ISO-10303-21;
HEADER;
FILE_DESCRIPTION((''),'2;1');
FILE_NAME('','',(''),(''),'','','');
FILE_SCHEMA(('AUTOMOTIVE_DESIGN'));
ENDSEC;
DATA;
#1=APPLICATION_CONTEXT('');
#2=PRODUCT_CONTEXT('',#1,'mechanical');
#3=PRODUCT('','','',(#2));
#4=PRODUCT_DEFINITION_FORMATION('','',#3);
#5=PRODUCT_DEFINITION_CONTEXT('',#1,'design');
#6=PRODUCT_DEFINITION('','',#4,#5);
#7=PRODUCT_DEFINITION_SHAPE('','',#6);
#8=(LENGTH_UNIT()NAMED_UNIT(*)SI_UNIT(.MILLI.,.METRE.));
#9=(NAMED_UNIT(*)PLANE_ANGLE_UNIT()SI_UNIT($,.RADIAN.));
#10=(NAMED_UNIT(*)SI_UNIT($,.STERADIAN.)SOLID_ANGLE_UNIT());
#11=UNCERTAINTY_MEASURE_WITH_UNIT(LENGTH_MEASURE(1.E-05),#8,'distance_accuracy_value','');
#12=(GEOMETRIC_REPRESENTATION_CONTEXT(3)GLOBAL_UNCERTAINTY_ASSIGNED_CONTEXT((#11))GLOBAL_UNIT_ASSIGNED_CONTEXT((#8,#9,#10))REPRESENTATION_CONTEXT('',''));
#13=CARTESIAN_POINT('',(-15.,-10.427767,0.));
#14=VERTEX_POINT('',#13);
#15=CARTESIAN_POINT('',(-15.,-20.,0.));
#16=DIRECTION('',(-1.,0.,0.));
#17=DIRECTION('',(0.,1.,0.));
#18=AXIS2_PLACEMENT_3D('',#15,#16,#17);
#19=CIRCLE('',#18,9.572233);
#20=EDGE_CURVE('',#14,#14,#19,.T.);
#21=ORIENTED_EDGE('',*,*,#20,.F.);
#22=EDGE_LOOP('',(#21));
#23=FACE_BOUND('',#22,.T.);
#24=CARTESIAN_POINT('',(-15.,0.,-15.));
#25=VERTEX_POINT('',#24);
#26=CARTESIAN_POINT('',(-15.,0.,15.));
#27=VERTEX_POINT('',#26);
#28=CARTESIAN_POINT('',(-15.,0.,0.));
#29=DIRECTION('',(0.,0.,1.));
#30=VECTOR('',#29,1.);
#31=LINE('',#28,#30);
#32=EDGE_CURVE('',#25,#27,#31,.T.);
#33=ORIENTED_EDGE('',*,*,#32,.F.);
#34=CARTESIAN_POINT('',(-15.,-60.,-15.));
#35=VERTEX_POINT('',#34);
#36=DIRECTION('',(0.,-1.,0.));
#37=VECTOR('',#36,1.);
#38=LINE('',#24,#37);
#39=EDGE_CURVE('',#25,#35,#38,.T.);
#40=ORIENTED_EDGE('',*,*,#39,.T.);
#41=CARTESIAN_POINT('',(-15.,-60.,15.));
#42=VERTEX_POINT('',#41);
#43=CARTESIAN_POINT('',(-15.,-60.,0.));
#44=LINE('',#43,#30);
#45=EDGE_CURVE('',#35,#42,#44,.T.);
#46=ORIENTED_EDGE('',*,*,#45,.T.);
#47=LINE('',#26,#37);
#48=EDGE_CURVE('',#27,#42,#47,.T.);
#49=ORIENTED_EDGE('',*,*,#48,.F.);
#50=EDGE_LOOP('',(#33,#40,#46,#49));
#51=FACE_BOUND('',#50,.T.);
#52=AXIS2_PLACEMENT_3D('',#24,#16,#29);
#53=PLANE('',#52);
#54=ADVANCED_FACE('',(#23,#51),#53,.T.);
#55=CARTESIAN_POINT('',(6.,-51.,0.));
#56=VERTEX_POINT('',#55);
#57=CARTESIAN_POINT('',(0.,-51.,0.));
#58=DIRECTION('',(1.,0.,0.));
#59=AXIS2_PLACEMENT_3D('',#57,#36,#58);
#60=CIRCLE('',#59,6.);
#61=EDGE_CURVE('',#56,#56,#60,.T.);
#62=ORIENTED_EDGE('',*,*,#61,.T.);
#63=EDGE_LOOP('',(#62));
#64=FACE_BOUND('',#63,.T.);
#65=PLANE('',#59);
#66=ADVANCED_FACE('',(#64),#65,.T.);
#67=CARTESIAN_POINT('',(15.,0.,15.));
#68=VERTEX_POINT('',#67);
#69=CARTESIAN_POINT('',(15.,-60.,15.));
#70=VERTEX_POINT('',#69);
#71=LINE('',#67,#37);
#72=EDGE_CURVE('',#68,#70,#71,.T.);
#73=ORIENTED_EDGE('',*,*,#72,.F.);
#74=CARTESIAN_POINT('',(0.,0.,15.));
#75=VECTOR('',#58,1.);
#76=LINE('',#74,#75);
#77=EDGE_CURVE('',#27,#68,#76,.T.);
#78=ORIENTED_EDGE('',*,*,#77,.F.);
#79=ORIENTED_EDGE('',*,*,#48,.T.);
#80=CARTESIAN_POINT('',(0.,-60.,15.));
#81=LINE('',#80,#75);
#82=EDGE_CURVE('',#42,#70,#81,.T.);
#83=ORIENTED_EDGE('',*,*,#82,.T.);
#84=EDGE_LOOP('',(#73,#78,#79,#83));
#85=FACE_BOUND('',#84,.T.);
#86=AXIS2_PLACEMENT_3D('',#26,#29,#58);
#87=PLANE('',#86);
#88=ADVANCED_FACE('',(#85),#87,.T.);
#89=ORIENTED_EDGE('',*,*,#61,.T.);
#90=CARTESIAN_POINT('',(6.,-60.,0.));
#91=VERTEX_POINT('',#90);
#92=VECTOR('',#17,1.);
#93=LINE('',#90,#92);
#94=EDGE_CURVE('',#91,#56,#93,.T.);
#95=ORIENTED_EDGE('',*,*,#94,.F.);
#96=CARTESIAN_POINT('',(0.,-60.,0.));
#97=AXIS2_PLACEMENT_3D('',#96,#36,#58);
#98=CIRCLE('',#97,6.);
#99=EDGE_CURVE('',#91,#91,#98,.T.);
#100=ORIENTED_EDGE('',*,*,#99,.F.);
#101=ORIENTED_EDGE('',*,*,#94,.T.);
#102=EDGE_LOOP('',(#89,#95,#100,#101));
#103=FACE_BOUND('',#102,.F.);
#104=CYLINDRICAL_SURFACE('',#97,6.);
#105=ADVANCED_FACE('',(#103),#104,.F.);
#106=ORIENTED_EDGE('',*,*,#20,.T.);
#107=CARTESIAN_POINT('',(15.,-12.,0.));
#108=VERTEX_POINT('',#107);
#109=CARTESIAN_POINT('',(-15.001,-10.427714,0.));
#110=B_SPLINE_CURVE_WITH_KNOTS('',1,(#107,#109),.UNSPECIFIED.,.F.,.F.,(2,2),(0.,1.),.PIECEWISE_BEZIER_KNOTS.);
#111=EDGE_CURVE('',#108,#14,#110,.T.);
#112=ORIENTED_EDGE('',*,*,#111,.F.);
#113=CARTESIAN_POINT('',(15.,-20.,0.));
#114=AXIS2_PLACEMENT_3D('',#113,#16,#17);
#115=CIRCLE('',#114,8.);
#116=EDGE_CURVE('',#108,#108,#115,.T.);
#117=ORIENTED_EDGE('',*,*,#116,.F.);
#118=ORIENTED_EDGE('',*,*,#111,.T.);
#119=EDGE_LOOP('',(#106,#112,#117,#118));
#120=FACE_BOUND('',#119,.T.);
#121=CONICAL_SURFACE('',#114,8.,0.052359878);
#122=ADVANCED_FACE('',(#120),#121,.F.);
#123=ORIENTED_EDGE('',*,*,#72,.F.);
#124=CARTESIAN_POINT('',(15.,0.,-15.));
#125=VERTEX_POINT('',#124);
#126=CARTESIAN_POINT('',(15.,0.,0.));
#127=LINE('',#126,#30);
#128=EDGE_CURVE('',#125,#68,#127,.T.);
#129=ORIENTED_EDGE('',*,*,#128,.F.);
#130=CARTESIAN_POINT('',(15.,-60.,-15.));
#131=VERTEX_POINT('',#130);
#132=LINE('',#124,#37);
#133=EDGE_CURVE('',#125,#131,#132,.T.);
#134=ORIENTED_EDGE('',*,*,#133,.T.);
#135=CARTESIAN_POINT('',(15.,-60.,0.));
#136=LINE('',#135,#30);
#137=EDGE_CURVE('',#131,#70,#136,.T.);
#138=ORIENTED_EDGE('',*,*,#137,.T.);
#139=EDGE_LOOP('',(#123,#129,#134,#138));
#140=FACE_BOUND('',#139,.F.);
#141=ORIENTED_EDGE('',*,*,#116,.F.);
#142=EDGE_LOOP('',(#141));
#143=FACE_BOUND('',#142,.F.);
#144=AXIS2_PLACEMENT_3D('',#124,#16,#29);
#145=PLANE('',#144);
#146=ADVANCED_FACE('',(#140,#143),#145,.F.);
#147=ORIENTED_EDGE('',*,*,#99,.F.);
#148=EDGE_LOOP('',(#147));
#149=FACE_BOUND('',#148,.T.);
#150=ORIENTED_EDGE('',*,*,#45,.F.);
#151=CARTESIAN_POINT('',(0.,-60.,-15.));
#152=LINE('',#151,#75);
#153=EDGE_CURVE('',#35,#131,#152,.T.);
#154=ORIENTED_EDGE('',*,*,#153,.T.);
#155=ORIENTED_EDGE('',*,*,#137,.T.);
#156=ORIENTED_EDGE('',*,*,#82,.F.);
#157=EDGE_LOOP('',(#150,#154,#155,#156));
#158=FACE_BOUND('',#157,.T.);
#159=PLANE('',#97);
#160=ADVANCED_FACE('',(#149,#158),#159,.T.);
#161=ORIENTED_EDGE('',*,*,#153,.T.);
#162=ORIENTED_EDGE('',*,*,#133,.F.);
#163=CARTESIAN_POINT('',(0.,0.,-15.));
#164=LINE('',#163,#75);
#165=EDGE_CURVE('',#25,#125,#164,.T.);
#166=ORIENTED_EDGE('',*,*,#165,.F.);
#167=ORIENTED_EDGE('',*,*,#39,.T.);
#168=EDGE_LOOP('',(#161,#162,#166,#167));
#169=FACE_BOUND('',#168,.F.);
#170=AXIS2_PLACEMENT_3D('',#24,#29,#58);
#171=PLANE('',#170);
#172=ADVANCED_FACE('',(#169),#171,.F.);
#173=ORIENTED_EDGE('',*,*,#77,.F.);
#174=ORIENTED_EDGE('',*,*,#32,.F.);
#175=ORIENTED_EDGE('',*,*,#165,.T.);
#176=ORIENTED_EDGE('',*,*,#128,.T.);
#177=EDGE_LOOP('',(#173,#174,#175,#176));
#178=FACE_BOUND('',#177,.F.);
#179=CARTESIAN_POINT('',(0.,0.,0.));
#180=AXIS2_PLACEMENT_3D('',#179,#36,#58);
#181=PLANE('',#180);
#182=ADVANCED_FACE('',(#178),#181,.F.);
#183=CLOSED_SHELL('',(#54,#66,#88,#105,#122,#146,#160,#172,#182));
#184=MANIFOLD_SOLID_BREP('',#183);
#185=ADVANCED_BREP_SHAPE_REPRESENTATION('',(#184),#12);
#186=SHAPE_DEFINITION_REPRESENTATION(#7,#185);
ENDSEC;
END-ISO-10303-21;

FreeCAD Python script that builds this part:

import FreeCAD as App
import Part
import Sketcher

V = App.Vector

doc = App.newDocument("Part")
body = doc.addObject("PartDesign::Body", "Body")

sketch1 = body.newObject("Sketcher::SketchObject", "Sketch")
sketch1.AttachmentSupport = (doc.getObject("XZ_Plane"), [""])
sketch1.MapMode = "FlatFace"
sketch1.addGeometry([
    Part.LineSegment(V(-15, 15, 0), V(-15, -15, 0)),
    Part.LineSegment(V(-15, -15, 0), V(15, -15, 0)),
    Part.LineSegment(V(15, -15, 0), V(15, 15, 0)),
    Part.LineSegment(V(15, 15, 0), V(-15, 15, 0)),
], False)
sketch1.addConstraint([
    Sketcher.Constraint("Coincident", 0, 2, 1, 1),
    Sketcher.Constraint("Coincident", 1, 2, 2, 1),
    Sketcher.Constraint("Coincident", 2, 2, 3, 1),
    Sketcher.Constraint("Coincident", 3, 2, 0, 1),
    Sketcher.Constraint("Vertical", 0),
    Sketcher.Constraint("Horizontal", 1),
    Sketcher.Constraint("Vertical", 2),
    Sketcher.Constraint("Horizontal", 3),
    Sketcher.Constraint("Symmetric", 0, 2, 2, 2, -1, 1),
    Sketcher.Constraint("Equal", 3, 0),
    Sketcher.Constraint("DistanceX", 1, 1, 1, 2, 30.0),
])
pad1 = body.newObject("PartDesign::Pad", "Pad")
pad1.Profile = sketch1
pad1.Length = 60

sketch2 = body.newObject("Sketcher::SketchObject", "Sketch001")
sketch2.AttachmentSupport = (doc.getObject("YZ_Plane"), [""])
sketch2.MapMode = "FlatFace"
sketch2.AttachmentOffset = App.Placement(V(0, 0, 15), App.Rotation())
sketch2.addGeometry(Part.Circle(V(-20, 0, 0), V(0, 0, 1), 8), False)
sketch2.addConstraint([
    Sketcher.Constraint("PointOnObject", 0, 3, -1),
    Sketcher.Constraint("Diameter", 0, 16.0),
    Sketcher.Constraint("DistanceX", 0, 3, -1, 1, 20.0),
])
pocket1 = body.newObject("PartDesign::Pocket", "Pocket")
pocket1.Profile = sketch2
pocket1.Length = 30.001
pocket1.TaperAngle = 3

sketch3 = body.newObject("Sketcher::SketchObject", "Sketch002")
sketch3.AttachmentSupport = (doc.getObject("XZ_Plane"), [""])
sketch3.MapMode = "FlatFace"
sketch3.AttachmentOffset = App.Placement(V(0, 0, 60), App.Rotation())
sketch3.addGeometry(Part.Circle(V(0, 0, 0), V(0, 0, 1), 6), False)
sketch3.addConstraint([
    Sketcher.Constraint("Coincident", 0, 3, -1, 1),
    Sketcher.Constraint("Diameter", 0, 12.0),
])
pocket2 = body.newObject("PartDesign::Pocket", "Pocket001")
pocket2.Profile = sketch3
pocket2.Length = 9

doc.recompute()
